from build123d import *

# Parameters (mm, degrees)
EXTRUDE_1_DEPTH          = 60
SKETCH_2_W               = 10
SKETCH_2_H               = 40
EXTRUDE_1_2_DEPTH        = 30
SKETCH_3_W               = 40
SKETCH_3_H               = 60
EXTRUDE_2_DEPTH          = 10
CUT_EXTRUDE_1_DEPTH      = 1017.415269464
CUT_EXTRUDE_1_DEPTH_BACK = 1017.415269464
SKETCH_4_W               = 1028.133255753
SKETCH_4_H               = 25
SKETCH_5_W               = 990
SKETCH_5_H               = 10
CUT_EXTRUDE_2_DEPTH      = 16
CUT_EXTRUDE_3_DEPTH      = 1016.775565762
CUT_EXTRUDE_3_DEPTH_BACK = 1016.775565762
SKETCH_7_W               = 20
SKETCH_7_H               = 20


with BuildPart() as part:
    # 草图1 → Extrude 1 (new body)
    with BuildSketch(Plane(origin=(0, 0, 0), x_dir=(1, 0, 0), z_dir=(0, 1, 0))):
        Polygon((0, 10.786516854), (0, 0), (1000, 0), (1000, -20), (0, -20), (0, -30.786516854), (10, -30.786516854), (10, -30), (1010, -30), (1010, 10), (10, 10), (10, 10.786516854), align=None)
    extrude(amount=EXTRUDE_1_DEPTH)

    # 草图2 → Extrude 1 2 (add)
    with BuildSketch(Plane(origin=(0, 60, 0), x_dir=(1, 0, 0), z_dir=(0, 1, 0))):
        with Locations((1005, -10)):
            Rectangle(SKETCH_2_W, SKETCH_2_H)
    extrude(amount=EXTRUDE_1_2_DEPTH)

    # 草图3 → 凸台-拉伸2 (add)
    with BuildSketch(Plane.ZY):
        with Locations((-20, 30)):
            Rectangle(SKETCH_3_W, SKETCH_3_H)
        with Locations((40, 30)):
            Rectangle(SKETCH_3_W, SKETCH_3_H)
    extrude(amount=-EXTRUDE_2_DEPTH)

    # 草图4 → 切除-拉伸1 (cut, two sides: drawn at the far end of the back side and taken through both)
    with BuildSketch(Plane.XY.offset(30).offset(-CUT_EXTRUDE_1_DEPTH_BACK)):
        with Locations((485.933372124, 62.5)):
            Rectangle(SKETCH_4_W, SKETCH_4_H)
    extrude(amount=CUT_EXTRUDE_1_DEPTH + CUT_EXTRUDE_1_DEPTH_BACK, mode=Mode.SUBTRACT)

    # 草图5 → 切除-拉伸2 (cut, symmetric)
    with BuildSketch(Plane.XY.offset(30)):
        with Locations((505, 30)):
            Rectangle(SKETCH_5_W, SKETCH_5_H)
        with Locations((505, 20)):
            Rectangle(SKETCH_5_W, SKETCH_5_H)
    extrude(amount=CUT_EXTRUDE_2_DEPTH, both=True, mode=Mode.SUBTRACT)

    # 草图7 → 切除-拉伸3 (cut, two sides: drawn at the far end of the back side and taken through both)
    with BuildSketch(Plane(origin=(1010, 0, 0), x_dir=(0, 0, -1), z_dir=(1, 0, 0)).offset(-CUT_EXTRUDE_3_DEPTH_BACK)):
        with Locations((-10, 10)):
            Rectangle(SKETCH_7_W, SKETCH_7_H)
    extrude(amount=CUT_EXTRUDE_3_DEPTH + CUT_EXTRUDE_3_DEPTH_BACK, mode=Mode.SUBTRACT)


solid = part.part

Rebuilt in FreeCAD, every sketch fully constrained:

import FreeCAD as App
import Part
import Sketcher

doc = App.newDocument("Part")
body = doc.addObject("PartDesign::Body", "Body")

# Sketch on XZ plane
sketch1 = body.newObject("Sketcher::SketchObject", "Sketch")
sketch1.AttachmentSupport = (doc.getObject("XZ_Plane"), [""])
sketch1.MapMode = "FlatFace"
sketch1.addGeometry([
    Part.LineSegment(App.Vector(0, -10.8, 0), App.Vector(0, 0, 0)),  # 0
    Part.LineSegment(App.Vector(0, 0, 0), App.Vector(1000, 0, 0)),  # 1
    Part.LineSegment(App.Vector(1000, 0, 0), App.Vector(1000, 20, 0)),  # 2
    Part.LineSegment(App.Vector(1000, 20, 0), App.Vector(0, 20, 0)),  # 3
    Part.LineSegment(App.Vector(0, 20, 0), App.Vector(0, 30.8, 0)),  # 4
    Part.LineSegment(App.Vector(0, 30.8, 0), App.Vector(10, 30.8, 0)),  # 5
    Part.LineSegment(App.Vector(10, 30.8, 0), App.Vector(10, 30, 0)),  # 6
    Part.LineSegment(App.Vector(10, 30, 0), App.Vector(1010, 30, 0)),  # 7
    Part.LineSegment(App.Vector(1010, 30, 0), App.Vector(1010, -10, 0)),  # 8
    Part.LineSegment(App.Vector(1010, -10, 0), App.Vector(10, -10, 0)),  # 9
    Part.LineSegment(App.Vector(10, -10, 0), App.Vector(10, -10.8, 0)),  # 10
    Part.LineSegment(App.Vector(10, -10.8, 0), App.Vector(0, -10.8, 0)),  # 11
], False)
sketch1.addConstraint([
    Sketcher.Constraint("Coincident", 0, 2, 1, 1),
    Sketcher.Constraint("Coincident", 1, 2, 2, 1),
    Sketcher.Constraint("Coincident", 2, 2, 3, 1),
    Sketcher.Constraint("Coincident", 3, 2, 4, 1),
    Sketcher.Constraint("Coincident", 4, 2, 5, 1),
    Sketcher.Constraint("Coincident", 5, 2, 6, 1),
    Sketcher.Constraint("Coincident", 6, 2, 7, 1),
    Sketcher.Constraint("Coincident", 7, 2, 8, 1),
    Sketcher.Constraint("Coincident", 8, 2, 9, 1),
    Sketcher.Constraint("Coincident", 9, 2, 10, 1),
    Sketcher.Constraint("Coincident", 10, 2, 11, 1),
    Sketcher.Constraint("Coincident", 11, 2, 0, 1),
    Sketcher.Constraint("Vertical", 0),
    Sketcher.Constraint("Horizontal", 1),
    Sketcher.Constraint("Vertical", 2),
    Sketcher.Constraint("Horizontal", 3),
    Sketcher.Constraint("Vertical", 4),
    Sketcher.Constraint("Horizontal", 5),
    Sketcher.Constraint("Vertical", 6),
    Sketcher.Constraint("Horizontal", 7),
    Sketcher.Constraint("Vertical", 8),
    Sketcher.Constraint("Horizontal", 9),
    Sketcher.Constraint("Vertical", 10),
    Sketcher.Constraint("Horizontal", 11),
    Sketcher.Constraint("Coincident", 0, 2, -1, 1),
    Sketcher.Constraint("PointOnObject", 3, 2, -2),
    Sketcher.Constraint("Vertical", 6, 2, 9, 2),
    Sketcher.Constraint("Equal", 3, 7),
    Sketcher.Constraint("Equal", 0, 4),
    Sketcher.Constraint("Equal", 6, 10),
    Sketcher.Constraint("DistanceX", 1, 1, 1, 2, 1000.0),
    Sketcher.Constraint("DistanceX", 5, 1, 5, 2, 10.0),
    Sketcher.Constraint("DistanceY", 2, 1, 2, 2, 20.0),
    Sketcher.Constraint("DistanceY", 8, 2, 8, 1, 40.0),
    Sketcher.Constraint("DistanceY", 0, 1, 0, 2, 10.786517),
])
pad1 = body.newObject("PartDesign::Pad", "Pad")
pad1.Profile = sketch1
pad1.Length = 60
pad1.Reversed = True

# Sketch on XZ plane
sketch2 = body.newObject("Sketcher::SketchObject", "Sketch001")
sketch2.AttachmentSupport = (doc.getObject("XZ_Plane"), [""])
sketch2.MapMode = "FlatFace"
sketch2.AttachmentOffset = App.Placement(App.Vector(0, 0, -60), App.Rotation())
sketch2.addGeometry([
    Part.LineSegment(App.Vector(1000, -10, 0), App.Vector(1000, 30, 0)),
    Part.LineSegment(App.Vector(1000, 30, 0), App.Vector(1010, 30, 0)),
    Part.LineSegment(App.Vector(1010, 30, 0), App.Vector(1010, -10, 0)),
    Part.LineSegment(App.Vector(1010, -10, 0), App.Vector(1000, -10, 0)),
], False)
sketch2.addConstraint([
    Sketcher.Constraint("Coincident", 0, 2, 1, 1),
    Sketcher.Constraint("Coincident", 1, 2, 2, 1),
    Sketcher.Constraint("Coincident", 2, 2, 3, 1),
    Sketcher.Constraint("Coincident", 3, 2, 0, 1),
    Sketcher.Constraint("Vertical", 0),
    Sketcher.Constraint("Horizontal", 1),
    Sketcher.Constraint("Vertical", 2),
    Sketcher.Constraint("Horizontal", 3),
    Sketcher.Constraint("DistanceX", 1, 1, 1, 2, 10.0),
    Sketcher.Constraint("DistanceY", 0, 1, 0, 2, 40.0),
    Sketcher.Constraint("DistanceX", -1, 1, 0, 2, 1000.0),
    Sketcher.Constraint("DistanceY", -1, 1, 0, 2, 30.0),
])
pad2 = body.newObject("PartDesign::Pad", "Pad001")
pad2.Profile = sketch2
pad2.Length = 30
pad2.Reversed = True

# Sketch on YZ plane
sketch3 = body.newObject("Sketcher::SketchObject", "Sketch002")
sketch3.AttachmentSupport = (doc.getObject("YZ_Plane"), [""])
sketch3.MapMode = "FlatFace"
sketch3.addGeometry([
    Part.LineSegment(App.Vector(60, -40, 0), App.Vector(0, -40, 0)),  # 0
    Part.LineSegment(App.Vector(0, -40, 0), App.Vector(0, 0, 0)),  # 1
    Part.LineSegment(App.Vector(0, 0, 0), App.Vector(60, 0, 0)),  # 2
    Part.LineSegment(App.Vector(60, 0, 0), App.Vector(60, -40, 0)),  # 3
    Part.LineSegment(App.Vector(60, 20, 0), App.Vector(0, 20, 0)),  # 4
    Part.LineSegment(App.Vector(0, 20, 0), App.Vector(0, 60, 0)),  # 5
    Part.LineSegment(App.Vector(0, 60, 0), App.Vector(60, 60, 0)),  # 6
    Part.LineSegment(App.Vector(60, 60, 0), App.Vector(60, 20, 0)),  # 7
], False)
sketch3.addConstraint([
    Sketcher.Constraint("Coincident", 0, 2, 1, 1),
    Sketcher.Constraint("Coincident", 1, 2, 2, 1),
    Sketcher.Constraint("Coincident", 2, 2, 3, 1),
    Sketcher.Constraint("Coincident", 3, 2, 0, 1),
    Sketcher.Constraint("Coincident", 4, 2, 5, 1),
    Sketcher.Constraint("Coincident", 5, 2, 6, 1),
    Sketcher.Constraint("Coincident", 6, 2, 7, 1),
    Sketcher.Constraint("Coincident", 7, 2, 4, 1),
    Sketcher.Constraint("Horizontal", 0),
    Sketcher.Constraint("Vertical", 1),
    Sketcher.Constraint("Horizontal", 2),
    Sketcher.Constraint("Vertical", 3),
    Sketcher.Constraint("Horizontal", 4),
    Sketcher.Constraint("Vertical", 5),
    Sketcher.Constraint("Horizontal", 6),
    Sketcher.Constraint("Vertical", 7),
    Sketcher.Constraint("Coincident", 1, 2, -1, 1),
    Sketcher.Constraint("PointOnObject", 4, 2, -2),
    Sketcher.Constraint("Vertical", 3, 2, 6, 2),
    Sketcher.Constraint("Equal", 3, 5),
    Sketcher.Constraint("DistanceX", 0, 2, 0, 1, 60.0),
    Sketcher.Constraint("DistanceY", 1, 1, 1, 2, 40.0),
    Sketcher.Constraint("DistanceY", -1, 1, 4, 2, 20.0),
])
pad3 = body.newObject("PartDesign::Pad", "Pad002")
pad3.Profile = sketch3
pad3.Length = 10

# Sketch on XY plane
sketch4 = body.newObject("Sketcher::SketchObject", "Sketch003")
sketch4.AttachmentSupport = (doc.getObject("XY_Plane"), [""])
sketch4.MapMode = "FlatFace"
sketch4.AttachmentOffset = App.Placement(App.Vector(0, 0, 30), App.Rotation())
sketch4.addGeometry([
    Part.LineSegment(App.Vector(-28, 75, 0), App.Vector(-28, 50, 0)),
    Part.LineSegment(App.Vector(-28, 50, 0), App.Vector(1000, 50, 0)),
    Part.LineSegment(App.Vector(1000, 50, 0), App.Vector(1000, 75, 0)),
    Part.LineSegment(App.Vector(1000, 75, 0), App.Vector(-28, 75, 0)),
], False)
sketch4.addConstraint([
    Sketcher.Constraint("Coincident", 0, 2, 1, 1),
    Sketcher.Constraint("Coincident", 1, 2, 2, 1),
    Sketcher.Constraint("Coincident", 2, 2, 3, 1),
    Sketcher.Constraint("Coincident", 3, 2, 0, 1),
    Sketcher.Constraint("Vertical", 0),
    Sketcher.Constraint("Horizontal", 1),
    Sketcher.Constraint("Vertical", 2),
    Sketcher.Constraint("Horizontal", 3),
    Sketcher.Constraint("DistanceY", 0, 2, 0, 1, 25.0),
    Sketcher.Constraint("DistanceY", -1, 1, 0, 2, 50.0),
    Sketcher.Constraint("DistanceX", -1, 1, 1, 2, 1000.0),
    Sketcher.Constraint("DistanceX", 1, 1, 1, 2, 1028.133256),
])
pocket1 = body.newObject("PartDesign::Pocket", "Pocket")
pocket1.Profile = sketch4
pocket1.Type = "ThroughAll"
pocket1.Midplane = True

# Sketch on XY plane
sketch5 = body.newObject("Sketcher::SketchObject", "Sketch004")
sketch5.AttachmentSupport = (doc.getObject("XY_Plane"), [""])
sketch5.MapMode = "FlatFace"
sketch5.AttachmentOffset = App.Placement(App.Vector(0, 0, 30), App.Rotation())
sketch5.addGeometry([
    Part.LineSegment(App.Vector(10, 35, 0), App.Vector(10, 15, 0)),
    Part.LineSegment(App.Vector(10, 15, 0), App.Vector(1000, 15, 0)),
    Part.LineSegment(App.Vector(1000, 15, 0), App.Vector(1000, 35, 0)),
    Part.LineSegment(App.Vector(1000, 35, 0), App.Vector(10, 35, 0)),
], False)
sketch5.addConstraint([
    Sketcher.Constraint("Coincident", 0, 2, 1, 1),
    Sketcher.Constraint("Coincident", 1, 2, 2, 1),
    Sketcher.Constraint("Coincident", 2, 2, 3, 1),
    Sketcher.Constraint("Coincident", 3, 2, 0, 1),
    Sketcher.Constraint("Vertical", 0),
    Sketcher.Constraint("Horizontal", 1),
    Sketcher.Constraint("Vertical", 2),
    Sketcher.Constraint("Horizontal", 3),
    Sketcher.Constraint("DistanceX", 1, 1, 1, 2, 990.0),
    Sketcher.Constraint("DistanceY", 0, 2, 0, 1, 20.0),
    Sketcher.Constraint("DistanceX", -1, 1, 0, 2, 10.0),
    Sketcher.Constraint("DistanceY", -1, 1, 0, 2, 15.0),
])
pocket2 = body.newObject("PartDesign::Pocket", "Pocket001")
pocket2.Profile = sketch5
pocket2.Length = 32
pocket2.Midplane = True

# Sketch on YZ plane
sketch6 = body.newObject("Sketcher::SketchObject", "Sketch005")
sketch6.AttachmentSupport = (doc.getObject("YZ_Plane"), [""])
sketch6.MapMode = "FlatFace"
sketch6.AttachmentOffset = App.Placement(App.Vector(0, 0, 1010), App.Rotation())
sketch6.addGeometry([
    Part.LineSegment(App.Vector(20, 20, 0), App.Vector(0, 20, 0)),
    Part.LineSegment(App.Vector(0, 20, 0), App.Vector(0, 0, 0)),
    Part.LineSegment(App.Vector(0, 0, 0), App.Vector(20, 0, 0)),
    Part.LineSegment(App.Vector(20, 0, 0), App.Vector(20, 20, 0)),
], False)
sketch6.addConstraint([
    Sketcher.Constraint("Coincident", 0, 2, 1, 1),
    Sketcher.Constraint("Coincident", 1, 2, 2, 1),
    Sketcher.Constraint("Coincident", 2, 2, 3, 1),
    Sketcher.Constraint("Coincident", 3, 2, 0, 1),
    Sketcher.Constraint("Horizontal", 0),
    Sketcher.Constraint("Vertical", 1),
    Sketcher.Constraint("Horizontal", 2),
    Sketcher.Constraint("Vertical", 3),
    Sketcher.Constraint("Coincident", 1, 2, -1, 1),
    Sketcher.Constraint("Equal", 2, 1),
    Sketcher.Constraint("DistanceX", 0, 2, 0, 1, 20.0),
])
pocket3 = body.newObject("PartDesign::Pocket", "Pocket002")
pocket3.Profile = sketch6
pocket3.Type = "ThroughAll"
pocket3.Midplane = True

doc.recompute()
